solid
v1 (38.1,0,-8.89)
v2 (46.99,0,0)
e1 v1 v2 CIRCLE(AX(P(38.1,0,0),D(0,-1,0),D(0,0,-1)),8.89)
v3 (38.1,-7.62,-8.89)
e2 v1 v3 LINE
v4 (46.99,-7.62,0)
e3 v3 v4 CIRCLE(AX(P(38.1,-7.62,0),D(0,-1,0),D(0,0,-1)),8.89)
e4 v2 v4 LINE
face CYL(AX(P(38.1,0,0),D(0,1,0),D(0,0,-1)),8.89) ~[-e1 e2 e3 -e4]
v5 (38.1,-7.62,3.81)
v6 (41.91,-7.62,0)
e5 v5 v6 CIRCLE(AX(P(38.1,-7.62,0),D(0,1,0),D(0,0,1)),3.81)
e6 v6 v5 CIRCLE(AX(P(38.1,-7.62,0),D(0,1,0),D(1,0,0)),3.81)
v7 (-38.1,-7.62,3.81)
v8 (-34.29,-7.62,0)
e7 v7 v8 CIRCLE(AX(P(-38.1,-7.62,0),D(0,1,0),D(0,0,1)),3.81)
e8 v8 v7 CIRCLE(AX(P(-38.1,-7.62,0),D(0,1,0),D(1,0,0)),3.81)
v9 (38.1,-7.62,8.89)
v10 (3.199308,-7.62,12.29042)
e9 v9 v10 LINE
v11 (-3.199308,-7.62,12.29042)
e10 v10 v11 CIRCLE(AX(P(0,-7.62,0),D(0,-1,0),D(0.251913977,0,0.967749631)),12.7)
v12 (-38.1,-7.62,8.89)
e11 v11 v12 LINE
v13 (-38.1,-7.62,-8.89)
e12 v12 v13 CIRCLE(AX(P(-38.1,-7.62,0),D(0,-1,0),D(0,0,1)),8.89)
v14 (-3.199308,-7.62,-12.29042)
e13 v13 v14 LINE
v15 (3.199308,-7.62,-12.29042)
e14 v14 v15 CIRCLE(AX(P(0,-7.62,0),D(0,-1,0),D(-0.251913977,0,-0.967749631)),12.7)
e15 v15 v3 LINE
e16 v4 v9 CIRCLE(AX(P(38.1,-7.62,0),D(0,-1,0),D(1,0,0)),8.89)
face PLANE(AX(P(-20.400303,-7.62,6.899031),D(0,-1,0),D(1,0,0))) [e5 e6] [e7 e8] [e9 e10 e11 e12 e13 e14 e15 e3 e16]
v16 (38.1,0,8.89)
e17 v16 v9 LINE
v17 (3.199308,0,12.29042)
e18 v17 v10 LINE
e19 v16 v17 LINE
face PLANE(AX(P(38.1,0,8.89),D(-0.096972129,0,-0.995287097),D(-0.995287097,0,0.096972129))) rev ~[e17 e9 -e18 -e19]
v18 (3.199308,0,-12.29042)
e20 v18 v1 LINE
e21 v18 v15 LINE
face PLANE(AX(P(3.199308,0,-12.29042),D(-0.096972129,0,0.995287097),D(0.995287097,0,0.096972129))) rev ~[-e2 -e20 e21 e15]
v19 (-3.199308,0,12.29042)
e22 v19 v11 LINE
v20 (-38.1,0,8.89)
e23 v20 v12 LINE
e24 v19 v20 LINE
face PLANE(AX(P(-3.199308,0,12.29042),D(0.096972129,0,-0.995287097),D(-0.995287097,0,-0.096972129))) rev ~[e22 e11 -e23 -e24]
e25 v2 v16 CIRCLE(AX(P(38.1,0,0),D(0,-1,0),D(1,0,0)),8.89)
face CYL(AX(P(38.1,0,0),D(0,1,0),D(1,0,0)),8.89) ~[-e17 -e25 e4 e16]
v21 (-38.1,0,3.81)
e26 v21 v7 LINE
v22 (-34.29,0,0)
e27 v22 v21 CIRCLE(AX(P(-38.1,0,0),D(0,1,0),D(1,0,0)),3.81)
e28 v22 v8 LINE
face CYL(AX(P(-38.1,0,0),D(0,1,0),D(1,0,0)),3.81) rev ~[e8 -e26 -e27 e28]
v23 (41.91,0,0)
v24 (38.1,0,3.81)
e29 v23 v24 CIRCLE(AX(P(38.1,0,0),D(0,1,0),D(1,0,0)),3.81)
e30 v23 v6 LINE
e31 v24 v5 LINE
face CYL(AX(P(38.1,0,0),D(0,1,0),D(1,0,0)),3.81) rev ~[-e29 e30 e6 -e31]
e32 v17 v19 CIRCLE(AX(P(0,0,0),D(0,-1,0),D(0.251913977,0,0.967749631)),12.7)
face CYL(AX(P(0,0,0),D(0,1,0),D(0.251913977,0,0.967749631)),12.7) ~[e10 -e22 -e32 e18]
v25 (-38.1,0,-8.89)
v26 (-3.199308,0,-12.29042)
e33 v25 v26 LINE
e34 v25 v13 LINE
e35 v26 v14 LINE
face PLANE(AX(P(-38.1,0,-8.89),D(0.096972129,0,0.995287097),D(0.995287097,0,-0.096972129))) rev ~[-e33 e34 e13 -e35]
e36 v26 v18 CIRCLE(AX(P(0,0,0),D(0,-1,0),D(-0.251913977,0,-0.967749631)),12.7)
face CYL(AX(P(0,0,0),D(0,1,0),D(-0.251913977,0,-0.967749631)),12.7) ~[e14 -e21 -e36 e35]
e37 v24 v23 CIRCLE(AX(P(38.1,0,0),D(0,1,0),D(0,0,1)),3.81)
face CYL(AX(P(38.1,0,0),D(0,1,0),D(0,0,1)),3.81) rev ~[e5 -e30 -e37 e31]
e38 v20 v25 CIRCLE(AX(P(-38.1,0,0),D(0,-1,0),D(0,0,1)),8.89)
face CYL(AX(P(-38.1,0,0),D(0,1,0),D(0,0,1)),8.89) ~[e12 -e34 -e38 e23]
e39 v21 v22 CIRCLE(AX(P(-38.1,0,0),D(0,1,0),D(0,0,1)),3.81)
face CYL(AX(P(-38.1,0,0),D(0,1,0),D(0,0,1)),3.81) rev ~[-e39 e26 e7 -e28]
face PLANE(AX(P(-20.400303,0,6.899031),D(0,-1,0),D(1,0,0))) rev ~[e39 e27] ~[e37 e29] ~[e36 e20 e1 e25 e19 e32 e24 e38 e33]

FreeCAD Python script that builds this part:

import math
import FreeCAD as App
import Part
import Sketcher
Q = App.Units.Quantity

doc = App.newDocument("Part")
body = doc.addObject("PartDesign::Body", "Body")

# Sketch on XZ plane
sketch1 = body.newObject("Sketcher::SketchObject", "Sketch")
sketch1.AttachmentSupport = (doc.getObject("XZ_Plane"), [""])
sketch1.MapMode = "FlatFace"
sketch1.addGeometry([
    Part.LineSegment(App.Vector(-3.199308, 12.29042, 0), App.Vector(-38.1, 8.89, 0)),  # 0
    Part.ArcOfCircle(Part.Circle(App.Vector(-38.1, 0, 0), App.Vector(0, 0, 1), 8.89), math.radians(90), math.radians(270)),  # 1
    Part.LineSegment(App.Vector(-38.1, -8.89, 0), App.Vector(-3.199308, -12.29042, 0)),  # 2
    Part.ArcOfCircle(Part.Circle(App.Vector(0, 0, 0), App.Vector(0, 0, 1), 12.7), math.radians(-104.5908), math.radians(-75.4092)),  # 3
    Part.LineSegment(App.Vector(3.199308, -12.29042, 0), App.Vector(38.1, -8.89, 0)),  # 4
    Part.ArcOfCircle(Part.Circle(App.Vector(38.1, 0, 0), App.Vector(0, 0, 1), 8.89), math.radians(-90), math.radians(0)),  # 5
    Part.ArcOfCircle(Part.Circle(App.Vector(38.1, 0, 0), App.Vector(0, 0, 1), 8.89), math.radians(0), math.radians(90)),  # 6
    Part.LineSegment(App.Vector(38.1, 8.89, 0), App.Vector(3.199308, 12.29042, 0)),  # 7
    Part.ArcOfCircle(Part.Circle(App.Vector(0, 0, 0), App.Vector(0, 0, 1), 12.7), math.radians(75.4092), math.radians(104.5908)),  # 8
    Part.ArcOfCircle(Part.Circle(App.Vector(-38.1, 0, 0), App.Vector(0, 0, 1), 3.81), math.radians(90), math.radians(360)),  # 9
    Part.ArcOfCircle(Part.Circle(App.Vector(-38.1, 0, 0), App.Vector(0, 0, 1), 3.81), math.radians(0), math.radians(90)),  # 10
    Part.ArcOfCircle(Part.Circle(App.Vector(38.1, 0, 0), App.Vector(0, 0, 1), 3.81), math.radians(0), math.radians(90)),  # 11
    Part.ArcOfCircle(Part.Circle(App.Vector(38.1, 0, 0), App.Vector(0, 0, 1), 3.81), math.radians(90), math.radians(360)),  # 12
], False)
sketch1.addConstraint([
    Sketcher.Constraint("Coincident", 0, 2, 1, 1),
    Sketcher.Constraint("Coincident", 1, 2, 2, 1),
    Sketcher.Constraint("Coincident", 2, 2, 3, 1),
    Sketcher.Constraint("Coincident", 3, 2, 4, 1),
    Sketcher.Constraint("Coincident", 4, 2, 5, 1),
    Sketcher.Constraint("Tangent", 5, 2, 6, 1),
    Sketcher.Constraint("Coincident", 6, 2, 7, 1),
    Sketcher.Constraint("Coincident", 7, 2, 8, 1),
    Sketcher.Constraint("Coincident", 8, 2, 0, 1),
    Sketcher.Constraint("Tangent", 9, 1, 10, 2),
    Sketcher.Constraint("Coincident", 10, 1, 9, 2),
    Sketcher.Constraint("Tangent", 11, 1, 12, 2),
    Sketcher.Constraint("Coincident", 12, 1, 11, 2),
    Sketcher.Constraint("Coincident", 3, 3, -1, 1),
    Sketcher.Constraint("Coincident", 8, 3, -1, 1),
    Sketcher.Constraint("Coincident", 9, 3, 1, 3),
    Sketcher.Constraint("Coincident", 11, 3, 5, 3),
    Sketcher.Constraint("Equal", 1, 5),
    Sketcher.Constraint("Equal", 5, 6),
    Sketcher.Constraint("Equal", 3, 8),
    Sketcher.Constraint("Equal", 10, 11),
    Sketcher.Constraint("Symmetric", 1, 3, 5, 3, -1, 1),
    Sketcher.Constraint("Symmetric", 1, 2, 4, 2, -2),
    Sketcher.Constraint("PointOnObject", 5, 2, -1),
    Sketcher.Constraint("PointOnObject", 10, 1, -1),
    Sketcher.Constraint("PointOnObject", 11, 1, -1),
    Sketcher.Constraint("Parallel", 0, 4),
    Sketcher.Constraint("Parallel", 2, 7),
    Sketcher.Constraint("Horizontal", 2, 2, 3, 2),
    Sketcher.Constraint("Horizontal", 7, 2, 8, 2),
    Sketcher.Constraint("Vertical", 10, 3, 0, 2),
    Sketcher.Constraint("Vertical", 0, 2, 1, 2),
    Sketcher.Constraint("Vertical", 1, 2, 9, 1),
    Sketcher.Constraint("Vertical", 6, 2, 12, 1),
    Sketcher.Constraint("Radius", 3, Q("0.5 in")),
    Sketcher.Constraint("Radius", 1, Q("0.35 in")),
    Sketcher.Constraint("Radius", 9, Q("0.15 in")),
    Sketcher.Constraint("DistanceX", 1, 3, 5, 3, Q("3 in")),
    Sketcher.Constraint("DistanceY", 2, 2, -1, 1, 12.29042),
])
pad1 = body.newObject("PartDesign::Pad", "Pad")
pad1.Profile = sketch1
pad1.Length = Q("0.3 in")

doc.recompute()
